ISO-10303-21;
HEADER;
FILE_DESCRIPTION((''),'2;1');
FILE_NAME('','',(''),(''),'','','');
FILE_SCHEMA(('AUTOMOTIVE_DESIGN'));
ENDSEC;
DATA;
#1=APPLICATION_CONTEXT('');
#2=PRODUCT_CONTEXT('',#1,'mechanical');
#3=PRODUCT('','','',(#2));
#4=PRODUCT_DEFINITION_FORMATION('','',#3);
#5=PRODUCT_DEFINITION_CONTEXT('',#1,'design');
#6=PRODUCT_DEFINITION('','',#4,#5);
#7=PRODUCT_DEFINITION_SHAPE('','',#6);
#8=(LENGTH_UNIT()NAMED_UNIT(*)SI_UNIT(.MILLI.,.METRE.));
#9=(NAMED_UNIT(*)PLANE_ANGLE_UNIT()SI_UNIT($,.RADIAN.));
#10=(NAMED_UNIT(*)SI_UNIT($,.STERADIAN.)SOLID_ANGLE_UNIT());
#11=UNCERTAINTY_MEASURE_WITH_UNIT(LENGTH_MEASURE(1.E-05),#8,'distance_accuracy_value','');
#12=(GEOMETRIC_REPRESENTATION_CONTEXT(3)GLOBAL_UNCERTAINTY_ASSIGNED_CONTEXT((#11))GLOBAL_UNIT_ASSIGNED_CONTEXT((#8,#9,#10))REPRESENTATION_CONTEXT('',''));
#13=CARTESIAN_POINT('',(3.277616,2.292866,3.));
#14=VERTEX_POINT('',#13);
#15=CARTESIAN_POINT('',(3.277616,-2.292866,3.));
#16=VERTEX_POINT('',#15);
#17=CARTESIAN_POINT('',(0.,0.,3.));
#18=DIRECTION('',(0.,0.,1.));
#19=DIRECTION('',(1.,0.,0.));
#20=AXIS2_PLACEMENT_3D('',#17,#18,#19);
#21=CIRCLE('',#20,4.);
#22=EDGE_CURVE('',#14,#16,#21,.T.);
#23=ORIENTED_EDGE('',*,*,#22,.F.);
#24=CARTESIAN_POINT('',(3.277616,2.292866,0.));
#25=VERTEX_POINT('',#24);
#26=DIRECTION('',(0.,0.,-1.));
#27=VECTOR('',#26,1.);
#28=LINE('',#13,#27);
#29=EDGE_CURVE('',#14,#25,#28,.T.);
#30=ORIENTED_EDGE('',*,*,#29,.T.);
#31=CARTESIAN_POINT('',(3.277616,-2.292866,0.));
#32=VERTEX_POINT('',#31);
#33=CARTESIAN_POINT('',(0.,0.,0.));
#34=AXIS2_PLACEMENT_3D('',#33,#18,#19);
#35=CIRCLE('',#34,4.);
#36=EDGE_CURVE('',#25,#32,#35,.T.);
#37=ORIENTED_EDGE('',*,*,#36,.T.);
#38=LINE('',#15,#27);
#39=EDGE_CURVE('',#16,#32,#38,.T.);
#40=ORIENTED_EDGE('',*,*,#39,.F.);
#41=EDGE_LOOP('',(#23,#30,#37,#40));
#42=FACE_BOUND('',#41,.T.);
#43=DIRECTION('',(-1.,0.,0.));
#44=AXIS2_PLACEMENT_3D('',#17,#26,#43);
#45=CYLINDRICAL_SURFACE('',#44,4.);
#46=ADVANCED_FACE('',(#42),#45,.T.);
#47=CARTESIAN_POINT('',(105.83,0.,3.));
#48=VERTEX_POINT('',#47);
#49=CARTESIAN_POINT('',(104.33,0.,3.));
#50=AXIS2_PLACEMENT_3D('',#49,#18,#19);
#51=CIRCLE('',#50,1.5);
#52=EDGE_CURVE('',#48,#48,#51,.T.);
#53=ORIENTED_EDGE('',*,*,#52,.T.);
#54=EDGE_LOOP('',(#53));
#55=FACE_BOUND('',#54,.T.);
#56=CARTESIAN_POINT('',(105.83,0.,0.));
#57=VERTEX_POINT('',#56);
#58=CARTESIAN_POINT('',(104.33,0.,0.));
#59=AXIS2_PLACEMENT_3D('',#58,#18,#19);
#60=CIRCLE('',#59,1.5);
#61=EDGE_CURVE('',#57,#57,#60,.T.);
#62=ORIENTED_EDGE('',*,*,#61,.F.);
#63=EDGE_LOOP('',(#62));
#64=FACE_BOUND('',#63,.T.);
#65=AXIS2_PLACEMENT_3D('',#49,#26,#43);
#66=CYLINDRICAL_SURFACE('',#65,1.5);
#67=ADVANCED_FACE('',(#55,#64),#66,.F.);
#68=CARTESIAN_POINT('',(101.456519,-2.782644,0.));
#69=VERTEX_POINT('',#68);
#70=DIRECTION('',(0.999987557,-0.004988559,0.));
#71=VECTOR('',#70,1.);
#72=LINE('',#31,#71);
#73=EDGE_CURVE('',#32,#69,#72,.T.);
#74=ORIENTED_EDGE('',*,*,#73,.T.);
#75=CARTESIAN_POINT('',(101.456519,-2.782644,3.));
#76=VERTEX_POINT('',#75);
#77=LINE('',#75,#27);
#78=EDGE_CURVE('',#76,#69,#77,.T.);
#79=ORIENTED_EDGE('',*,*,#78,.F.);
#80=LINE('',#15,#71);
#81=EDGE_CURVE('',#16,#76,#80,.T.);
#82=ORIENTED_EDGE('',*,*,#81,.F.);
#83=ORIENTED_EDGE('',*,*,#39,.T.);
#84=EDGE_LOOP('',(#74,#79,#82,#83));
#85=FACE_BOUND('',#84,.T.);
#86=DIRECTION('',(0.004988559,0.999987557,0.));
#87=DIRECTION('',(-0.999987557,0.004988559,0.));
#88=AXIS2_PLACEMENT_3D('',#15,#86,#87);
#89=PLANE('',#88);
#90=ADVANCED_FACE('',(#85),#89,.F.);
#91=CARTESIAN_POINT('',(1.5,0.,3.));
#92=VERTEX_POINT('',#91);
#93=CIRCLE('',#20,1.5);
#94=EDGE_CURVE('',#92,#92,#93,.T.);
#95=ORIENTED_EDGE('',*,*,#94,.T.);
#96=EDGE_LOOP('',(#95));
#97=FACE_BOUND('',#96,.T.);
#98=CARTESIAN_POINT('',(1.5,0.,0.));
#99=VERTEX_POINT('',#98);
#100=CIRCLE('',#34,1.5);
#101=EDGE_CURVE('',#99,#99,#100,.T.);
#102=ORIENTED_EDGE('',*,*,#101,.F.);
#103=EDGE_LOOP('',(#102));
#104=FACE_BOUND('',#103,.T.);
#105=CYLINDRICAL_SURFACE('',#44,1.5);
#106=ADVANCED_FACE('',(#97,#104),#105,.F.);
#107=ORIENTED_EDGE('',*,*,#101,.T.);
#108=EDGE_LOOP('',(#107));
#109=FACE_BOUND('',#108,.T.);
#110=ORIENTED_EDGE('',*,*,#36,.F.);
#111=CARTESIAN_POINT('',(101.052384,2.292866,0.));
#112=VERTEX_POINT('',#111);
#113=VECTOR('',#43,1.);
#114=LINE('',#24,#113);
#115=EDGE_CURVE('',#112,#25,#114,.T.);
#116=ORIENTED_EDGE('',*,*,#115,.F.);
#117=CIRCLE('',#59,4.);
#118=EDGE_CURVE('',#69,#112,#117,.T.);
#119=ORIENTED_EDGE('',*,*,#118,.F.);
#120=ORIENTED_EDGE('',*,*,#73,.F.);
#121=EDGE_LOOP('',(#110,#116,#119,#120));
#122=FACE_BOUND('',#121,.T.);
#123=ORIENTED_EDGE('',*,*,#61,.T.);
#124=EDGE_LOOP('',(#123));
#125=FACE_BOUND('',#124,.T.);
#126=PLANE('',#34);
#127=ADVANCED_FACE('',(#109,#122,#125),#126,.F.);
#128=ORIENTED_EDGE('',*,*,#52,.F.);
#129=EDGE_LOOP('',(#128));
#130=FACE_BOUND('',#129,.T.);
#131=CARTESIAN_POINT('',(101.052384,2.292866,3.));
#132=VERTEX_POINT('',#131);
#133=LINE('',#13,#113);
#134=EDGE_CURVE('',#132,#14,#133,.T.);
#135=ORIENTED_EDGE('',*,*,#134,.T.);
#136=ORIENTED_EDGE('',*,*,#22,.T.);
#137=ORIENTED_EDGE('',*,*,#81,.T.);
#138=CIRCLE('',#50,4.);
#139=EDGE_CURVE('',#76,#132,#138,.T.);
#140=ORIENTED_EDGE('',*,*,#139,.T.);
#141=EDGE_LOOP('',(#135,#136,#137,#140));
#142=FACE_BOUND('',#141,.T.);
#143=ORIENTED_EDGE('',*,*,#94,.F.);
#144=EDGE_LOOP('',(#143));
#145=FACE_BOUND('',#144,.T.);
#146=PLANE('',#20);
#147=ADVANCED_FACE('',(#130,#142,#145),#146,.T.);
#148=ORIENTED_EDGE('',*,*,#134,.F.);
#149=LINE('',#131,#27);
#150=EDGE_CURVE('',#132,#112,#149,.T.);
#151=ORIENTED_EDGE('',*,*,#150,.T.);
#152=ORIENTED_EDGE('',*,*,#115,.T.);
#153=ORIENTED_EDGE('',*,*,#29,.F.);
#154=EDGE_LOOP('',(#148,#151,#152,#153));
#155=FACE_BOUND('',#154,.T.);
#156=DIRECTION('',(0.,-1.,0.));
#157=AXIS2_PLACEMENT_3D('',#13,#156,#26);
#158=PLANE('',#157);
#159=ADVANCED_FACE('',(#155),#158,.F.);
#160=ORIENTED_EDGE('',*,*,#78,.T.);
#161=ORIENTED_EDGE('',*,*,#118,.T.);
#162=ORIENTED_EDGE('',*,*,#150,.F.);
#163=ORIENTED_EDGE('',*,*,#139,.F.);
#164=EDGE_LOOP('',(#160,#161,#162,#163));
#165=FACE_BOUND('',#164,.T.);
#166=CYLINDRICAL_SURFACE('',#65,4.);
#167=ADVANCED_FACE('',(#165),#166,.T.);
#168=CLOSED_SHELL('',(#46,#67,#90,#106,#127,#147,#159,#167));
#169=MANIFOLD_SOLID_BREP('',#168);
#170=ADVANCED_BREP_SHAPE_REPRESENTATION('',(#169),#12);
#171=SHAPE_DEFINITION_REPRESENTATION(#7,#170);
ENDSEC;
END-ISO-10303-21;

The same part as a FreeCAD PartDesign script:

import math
import FreeCAD as App
import Part
import Sketcher

doc = App.newDocument("Part")
body = doc.addObject("PartDesign::Body", "Body")

# Sketch on XY plane
sketch1 = body.newObject("Sketcher::SketchObject", "Sketch")
sketch1.AttachmentSupport = (doc.getObject("XY_Plane"), [""])
sketch1.MapMode = "FlatFace"
sketch1.addGeometry([
    Part.LineSegment(App.Vector(101.052384, 2.292866, 0), App.Vector(3.277616, 2.292866, 0)),  # 0
    Part.ArcOfCircle(Part.Circle(App.Vector(0, 0, 0), App.Vector(0, 0, 1), 4), math.radians(34.974831), math.radians(325.025169)),  # 1
    Part.LineSegment(App.Vector(3.277616, -2.292866, 0), App.Vector(101.456519, -2.782644, 0)),  # 2
    Part.ArcOfCircle(Part.Circle(App.Vector(104.33, 0, 0), App.Vector(0, 0, 1), 4), math.radians(-135.920096), math.radians(145.025169)),  # 3
    Part.Circle(App.Vector(104.33, 0, 0), App.Vector(0, 0, 1), 1.5),  # 4
    Part.Circle(App.Vector(0, 0, 0), App.Vector(0, 0, 1), 1.5),  # 5
], False)
sketch1.addConstraint([
    Sketcher.Constraint("Coincident", 0, 2, 1, 1),
    Sketcher.Constraint("Coincident", 1, 2, 2, 1),
    Sketcher.Constraint("Coincident", 2, 2, 3, 1),
    Sketcher.Constraint("Coincident", 3, 2, 0, 1),
    Sketcher.Constraint("Horizontal", 0),
    Sketcher.Constraint("Coincident", 1, 3, -1, 1),
    Sketcher.Constraint("Coincident", 5, 3, -1, 1),
    Sketcher.Constraint("Coincident", 4, 3, 3, 3),
    Sketcher.Constraint("Equal", 1, 3),
    Sketcher.Constraint("Equal", 4, 5),
    Sketcher.Constraint("PointOnObject", 3, 3, -1),
    Sketcher.Constraint("Vertical", 0, 2, 1, 2),
    Sketcher.Constraint("Diameter", 4, 3.0),
    Sketcher.Constraint("Radius", 1, 4.0),
    Sketcher.Constraint("DistanceX", -1, 1, 3, 3, 104.33),
    Sketcher.Constraint("DistanceX", 0, 2, 0, 1, 97.774769),
    Sketcher.Constraint("DistanceX", -1, 1, 2, 2, 101.456519),
])
pad1 = body.newObject("PartDesign::Pad", "Pad")
pad1.Profile = sketch1
pad1.Length = 3

doc.recompute()
